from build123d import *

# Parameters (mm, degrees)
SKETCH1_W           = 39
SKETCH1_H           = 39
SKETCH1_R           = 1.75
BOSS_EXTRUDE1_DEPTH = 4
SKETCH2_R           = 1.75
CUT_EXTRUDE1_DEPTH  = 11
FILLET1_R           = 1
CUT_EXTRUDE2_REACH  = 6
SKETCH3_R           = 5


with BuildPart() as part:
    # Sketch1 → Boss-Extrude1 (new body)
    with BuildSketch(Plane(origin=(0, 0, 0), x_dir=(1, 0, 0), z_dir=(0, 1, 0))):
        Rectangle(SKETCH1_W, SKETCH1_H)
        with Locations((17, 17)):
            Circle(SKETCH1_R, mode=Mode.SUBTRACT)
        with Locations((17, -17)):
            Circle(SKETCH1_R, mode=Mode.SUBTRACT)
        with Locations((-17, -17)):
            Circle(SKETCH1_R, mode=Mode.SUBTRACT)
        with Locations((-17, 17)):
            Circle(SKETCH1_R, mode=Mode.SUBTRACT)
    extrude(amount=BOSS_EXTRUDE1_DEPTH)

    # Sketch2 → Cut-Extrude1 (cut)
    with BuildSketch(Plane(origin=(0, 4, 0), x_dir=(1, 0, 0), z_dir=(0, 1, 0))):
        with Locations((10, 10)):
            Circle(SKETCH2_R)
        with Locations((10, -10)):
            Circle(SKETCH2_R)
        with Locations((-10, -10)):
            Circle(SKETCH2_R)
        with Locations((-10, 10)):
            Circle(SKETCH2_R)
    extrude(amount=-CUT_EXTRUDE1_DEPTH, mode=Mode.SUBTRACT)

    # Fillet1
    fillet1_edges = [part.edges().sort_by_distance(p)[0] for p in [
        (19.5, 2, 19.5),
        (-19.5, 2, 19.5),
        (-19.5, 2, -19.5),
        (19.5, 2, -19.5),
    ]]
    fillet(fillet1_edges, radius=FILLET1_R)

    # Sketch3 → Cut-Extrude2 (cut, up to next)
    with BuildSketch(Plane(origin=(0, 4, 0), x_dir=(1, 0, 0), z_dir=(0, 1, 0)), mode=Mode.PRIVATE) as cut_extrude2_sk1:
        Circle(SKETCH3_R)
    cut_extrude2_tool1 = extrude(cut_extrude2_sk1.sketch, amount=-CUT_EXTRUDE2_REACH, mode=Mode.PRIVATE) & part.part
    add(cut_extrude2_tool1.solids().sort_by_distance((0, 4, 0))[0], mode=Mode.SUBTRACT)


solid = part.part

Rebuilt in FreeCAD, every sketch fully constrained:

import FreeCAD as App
import Part
import Sketcher
from FreeCAD import Vector
Q = App.Units.Quantity


def edges_at(feature, points):
    """Names of the edges that pass closest to the given points."""
    edges = feature.Shape.Edges
    near = lambda p: min(range(len(edges)), key=lambda i: edges[i].distToShape(Part.Vertex(*p))[0])
    return sorted({f"Edge{near(p) + 1}" for p in points})


def add_polygon(sketch, points):
    """Adds a closed chain of lines whose ends are joined by coincident constraints."""
    first, n = sketch.GeometryCount, len(points)
    for a, b in zip(points, points[1:] + points[:1]):
        sketch.addGeometry(Part.LineSegment(App.Vector(*a, 0), App.Vector(*b, 0)), False)
    for i in range(n):
        sketch.addConstraint(Sketcher.Constraint("Coincident", first + i, 2, first + (i + 1) % n, 1))

doc = App.newDocument("Part")
body = doc.addObject("PartDesign::Body", "Body")

# Sketch on XZ plane
sketch1 = body.newObject("Sketcher::SketchObject", "Sketch")
sketch1.AttachmentSupport = (doc.getObject("XZ_Plane"), [""])
sketch1.MapMode = "FlatFace"
add_polygon(sketch1, [(-19.5, -19.5), (-19.5, 19.5), (19.5, 19.5), (19.5, -19.5)])  # lines 0-3
sketch1.addGeometry(Part.Circle(Vector(-17, 17, 0), Vector(0, 0, 1), 1.8), False)  # 4
sketch1.addGeometry(Part.Circle(Vector(17, 17, 0), Vector(0, 0, 1), 1.8), False)  # 5
sketch1.addGeometry(Part.Circle(Vector(-17, -17, 0), Vector(0, 0, 1), 1.8), False)  # 6
sketch1.addGeometry(Part.Circle(Vector(17, -17, 0), Vector(0, 0, 1), 1.8), False)  # 7
sketch1.addConstraint(Sketcher.Constraint("Vertical", 0))
sketch1.addConstraint(Sketcher.Constraint("Horizontal", 1))
sketch1.addConstraint(Sketcher.Constraint("Vertical", 2))
sketch1.addConstraint(Sketcher.Constraint("Horizontal", 3))
sketch1.addConstraint(Sketcher.Constraint("Equal", 4, 5))
sketch1.addConstraint(Sketcher.Constraint("Equal", 5, 6))
sketch1.addConstraint(Sketcher.Constraint("Equal", 6, 7))
sketch1.addConstraint(Sketcher.Constraint("Symmetric", 5, 3, 6, 3, -1, 1))
sketch1.addConstraint(Sketcher.Constraint("Symmetric", 4, 3, 7, 3, -1, 1))
sketch1.addConstraint(Sketcher.Constraint("Symmetric", 0, 2, 2, 2, -1, 1))
sketch1.addConstraint(Sketcher.Constraint("Symmetric", 4, 3, 5, 3, -2))
sketch1.addConstraint(Sketcher.Constraint("Equal", 3, 0))
sketch1.addConstraint(Sketcher.Constraint("Diameter", 4, Q("3.5 mm")))
sketch1.addConstraint(Sketcher.Constraint("DistanceX", 1, 1, 1, 2, Q("39 mm")))
sketch1.addConstraint(Sketcher.Constraint("DistanceX", 4, 3, -1, 1, Q("17 mm")))
sketch1.addConstraint(Sketcher.Constraint("DistanceY", -1, 1, 4, 3, Q("17 mm")))
pad1 = body.newObject("PartDesign::Pad", "Pad")
pad1.Profile = sketch1
pad1.Length = 4
pad1.Reversed = True

# Sketch on XZ plane
sketch2 = body.newObject("Sketcher::SketchObject", "Sketch001")
sketch2.AttachmentSupport = (doc.getObject("XZ_Plane"), [""])
sketch2.MapMode = "FlatFace"
sketch2.AttachmentOffset = App.Placement(Vector(0, 0, -4), App.Rotation())
sketch2.addGeometry(Part.Circle(Vector(10, -10, 0), Vector(0, 0, 1), 1.8), False)
sketch2.addGeometry(Part.Circle(Vector(10, 10, 0), Vector(0, 0, 1), 1.8), False)
sketch2.addGeometry(Part.Circle(Vector(-10, 10, 0), Vector(0, 0, 1), 1.8), False)
sketch2.addGeometry(Part.Circle(Vector(-10, -10, 0), Vector(0, 0, 1), 1.8), False)
sketch2.addConstraint(Sketcher.Constraint("Equal", 0, 1))
sketch2.addConstraint(Sketcher.Constraint("Equal", 1, 2))
sketch2.addConstraint(Sketcher.Constraint("Equal", 2, 3))
sketch2.addConstraint(Sketcher.Constraint("Symmetric", 0, 3, 2, 3, -1, 1))
sketch2.addConstraint(Sketcher.Constraint("Symmetric", 1, 3, 3, 3, -1, 1))
sketch2.addConstraint(Sketcher.Constraint("Symmetric", 1, 3, 2, 3, -2))
sketch2.addConstraint(Sketcher.Constraint("Diameter", 0, Q("3.5 mm")))
sketch2.addConstraint(Sketcher.Constraint("DistanceX", -1, 1, 0, 3, Q("10 mm")))
sketch2.addConstraint(Sketcher.Constraint("DistanceY", 0, 3, -1, 1, Q("10 mm")))
pocket1 = body.newObject("PartDesign::Pocket", "Pocket")
pocket1.Profile = sketch2
pocket1.Length = 11
pocket1.Reversed = True
doc.recompute()

fillet = body.newObject("PartDesign::Fillet", "Fillet")
fillet.Base = (pocket1, edges_at(pocket1, [
    (19.5, 2, 19.5),
    (-19.5, 2, 19.5),
    (-19.5, 2, -19.5),
    (19.5, 2, -19.5),
]))
fillet.Radius = 1

# Sketch on XZ plane
sketch3 = body.newObject("Sketcher::SketchObject", "Sketch002")
sketch3.AttachmentSupport = (doc.getObject("XZ_Plane"), [""])
sketch3.MapMode = "FlatFace"
sketch3.AttachmentOffset = App.Placement(Vector(0, 0, -4), App.Rotation())
sketch3.addGeometry(Part.Circle(Vector(0, 0, 0), Vector(0, 0, 1), 5), False)
sketch3.addConstraint(Sketcher.Constraint("Coincident", 0, 3, -1, 1))
sketch3.addConstraint(Sketcher.Constraint("Diameter", 0, Q("10 mm")))
pocket2 = body.newObject("PartDesign::Pocket", "Pocket001")
pocket2.Profile = sketch3
pocket2.Type = "UpToFirst"
pocket2.Reversed = True

doc.recompute()
